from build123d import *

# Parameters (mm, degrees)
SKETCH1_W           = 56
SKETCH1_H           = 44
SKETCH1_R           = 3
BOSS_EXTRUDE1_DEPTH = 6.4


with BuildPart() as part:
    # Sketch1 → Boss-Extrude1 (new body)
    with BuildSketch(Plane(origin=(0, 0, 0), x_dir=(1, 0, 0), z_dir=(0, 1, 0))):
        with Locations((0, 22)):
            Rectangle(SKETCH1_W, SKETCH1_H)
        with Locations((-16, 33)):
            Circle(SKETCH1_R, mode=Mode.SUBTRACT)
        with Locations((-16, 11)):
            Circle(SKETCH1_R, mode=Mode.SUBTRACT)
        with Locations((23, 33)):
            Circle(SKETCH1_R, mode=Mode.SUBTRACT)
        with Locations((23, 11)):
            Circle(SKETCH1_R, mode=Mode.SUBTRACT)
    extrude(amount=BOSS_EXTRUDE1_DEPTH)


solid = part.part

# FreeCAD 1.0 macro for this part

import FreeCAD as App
import Part
import Sketcher
Q = App.Units.Quantity


def add_polygon(sketch, points):
    """Adds a closed chain of lines whose ends are joined by coincident constraints."""
    first, n = sketch.GeometryCount, len(points)
    for a, b in zip(points, points[1:] + points[:1]):
        sketch.addGeometry(Part.LineSegment(App.Vector(*a, 0), App.Vector(*b, 0)), False)
    for i in range(n):
        sketch.addConstraint(Sketcher.Constraint("Coincident", first + i, 2, first + (i + 1) % n, 1))

doc = App.newDocument("Part")
body = doc.addObject("PartDesign::Body", "Body")

# Sketch on XZ plane
sketch1 = body.newObject("Sketcher::SketchObject", "Sketch")
sketch1.AttachmentSupport = (doc.getObject("XZ_Plane"), [""])
sketch1.MapMode = "FlatFace"
add_polygon(sketch1, [(-28, -44), (-28, 0), (28, 0), (28, -44)])  # lines 0-3
sketch1.addGeometry(Part.Circle(App.Vector(-16, -11, 0), App.Vector(0, 0, 1), 3), False)  # 4
sketch1.addGeometry(Part.Circle(App.Vector(23, -11, 0), App.Vector(0, 0, 1), 3), False)  # 5
sketch1.addGeometry(Part.Circle(App.Vector(-16, -33, 0), App.Vector(0, 0, 1), 3), False)  # 6
sketch1.addGeometry(Part.Circle(App.Vector(23, -33, 0), App.Vector(0, 0, 1), 3), False)  # 7
sketch1.addConstraint(Sketcher.Constraint("Vertical", 0))
sketch1.addConstraint(Sketcher.Constraint("Horizontal", 1))
sketch1.addConstraint(Sketcher.Constraint("Vertical", 2))
sketch1.addConstraint(Sketcher.Constraint("Horizontal", 3))
sketch1.addConstraint(Sketcher.Constraint("Equal", 4, 5))
sketch1.addConstraint(Sketcher.Constraint("Equal", 5, 6))
sketch1.addConstraint(Sketcher.Constraint("Equal", 6, 7))
sketch1.addConstraint(Sketcher.Constraint("Symmetric", 0, 2, 1, 2, -1, 1))
sketch1.addConstraint(Sketcher.Constraint("Horizontal", 4, 3, 5, 3))
sketch1.addConstraint(Sketcher.Constraint("Horizontal", 6, 3, 7, 3))
sketch1.addConstraint(Sketcher.Constraint("Vertical", 4, 3, 6, 3))
sketch1.addConstraint(Sketcher.Constraint("Vertical", 5, 3, 7, 3))
sketch1.addConstraint(Sketcher.Constraint("Diameter", 4, Q("6 mm")))
sketch1.addConstraint(Sketcher.Constraint("DistanceX", 1, 1, 1, 2, Q("56 mm")))
sketch1.addConstraint(Sketcher.Constraint("DistanceY", 0, 1, 0, 2, Q("44 mm")))
sketch1.addConstraint(Sketcher.Constraint("DistanceX", 4, 3, -1, 1, Q("16 mm")))
sketch1.addConstraint(Sketcher.Constraint("DistanceY", 4, 3, -1, 1, Q("11 mm")))
sketch1.addConstraint(Sketcher.Constraint("DistanceX", -1, 1, 5, 3, Q("23 mm")))
sketch1.addConstraint(Sketcher.Constraint("DistanceY", 6, 3, -1, 1, Q("33 mm")))
pad1 = body.newObject("PartDesign::Pad", "Pad")
pad1.Profile = sketch1
pad1.Length = 6.4
pad1.Reversed = True

doc.recompute()
